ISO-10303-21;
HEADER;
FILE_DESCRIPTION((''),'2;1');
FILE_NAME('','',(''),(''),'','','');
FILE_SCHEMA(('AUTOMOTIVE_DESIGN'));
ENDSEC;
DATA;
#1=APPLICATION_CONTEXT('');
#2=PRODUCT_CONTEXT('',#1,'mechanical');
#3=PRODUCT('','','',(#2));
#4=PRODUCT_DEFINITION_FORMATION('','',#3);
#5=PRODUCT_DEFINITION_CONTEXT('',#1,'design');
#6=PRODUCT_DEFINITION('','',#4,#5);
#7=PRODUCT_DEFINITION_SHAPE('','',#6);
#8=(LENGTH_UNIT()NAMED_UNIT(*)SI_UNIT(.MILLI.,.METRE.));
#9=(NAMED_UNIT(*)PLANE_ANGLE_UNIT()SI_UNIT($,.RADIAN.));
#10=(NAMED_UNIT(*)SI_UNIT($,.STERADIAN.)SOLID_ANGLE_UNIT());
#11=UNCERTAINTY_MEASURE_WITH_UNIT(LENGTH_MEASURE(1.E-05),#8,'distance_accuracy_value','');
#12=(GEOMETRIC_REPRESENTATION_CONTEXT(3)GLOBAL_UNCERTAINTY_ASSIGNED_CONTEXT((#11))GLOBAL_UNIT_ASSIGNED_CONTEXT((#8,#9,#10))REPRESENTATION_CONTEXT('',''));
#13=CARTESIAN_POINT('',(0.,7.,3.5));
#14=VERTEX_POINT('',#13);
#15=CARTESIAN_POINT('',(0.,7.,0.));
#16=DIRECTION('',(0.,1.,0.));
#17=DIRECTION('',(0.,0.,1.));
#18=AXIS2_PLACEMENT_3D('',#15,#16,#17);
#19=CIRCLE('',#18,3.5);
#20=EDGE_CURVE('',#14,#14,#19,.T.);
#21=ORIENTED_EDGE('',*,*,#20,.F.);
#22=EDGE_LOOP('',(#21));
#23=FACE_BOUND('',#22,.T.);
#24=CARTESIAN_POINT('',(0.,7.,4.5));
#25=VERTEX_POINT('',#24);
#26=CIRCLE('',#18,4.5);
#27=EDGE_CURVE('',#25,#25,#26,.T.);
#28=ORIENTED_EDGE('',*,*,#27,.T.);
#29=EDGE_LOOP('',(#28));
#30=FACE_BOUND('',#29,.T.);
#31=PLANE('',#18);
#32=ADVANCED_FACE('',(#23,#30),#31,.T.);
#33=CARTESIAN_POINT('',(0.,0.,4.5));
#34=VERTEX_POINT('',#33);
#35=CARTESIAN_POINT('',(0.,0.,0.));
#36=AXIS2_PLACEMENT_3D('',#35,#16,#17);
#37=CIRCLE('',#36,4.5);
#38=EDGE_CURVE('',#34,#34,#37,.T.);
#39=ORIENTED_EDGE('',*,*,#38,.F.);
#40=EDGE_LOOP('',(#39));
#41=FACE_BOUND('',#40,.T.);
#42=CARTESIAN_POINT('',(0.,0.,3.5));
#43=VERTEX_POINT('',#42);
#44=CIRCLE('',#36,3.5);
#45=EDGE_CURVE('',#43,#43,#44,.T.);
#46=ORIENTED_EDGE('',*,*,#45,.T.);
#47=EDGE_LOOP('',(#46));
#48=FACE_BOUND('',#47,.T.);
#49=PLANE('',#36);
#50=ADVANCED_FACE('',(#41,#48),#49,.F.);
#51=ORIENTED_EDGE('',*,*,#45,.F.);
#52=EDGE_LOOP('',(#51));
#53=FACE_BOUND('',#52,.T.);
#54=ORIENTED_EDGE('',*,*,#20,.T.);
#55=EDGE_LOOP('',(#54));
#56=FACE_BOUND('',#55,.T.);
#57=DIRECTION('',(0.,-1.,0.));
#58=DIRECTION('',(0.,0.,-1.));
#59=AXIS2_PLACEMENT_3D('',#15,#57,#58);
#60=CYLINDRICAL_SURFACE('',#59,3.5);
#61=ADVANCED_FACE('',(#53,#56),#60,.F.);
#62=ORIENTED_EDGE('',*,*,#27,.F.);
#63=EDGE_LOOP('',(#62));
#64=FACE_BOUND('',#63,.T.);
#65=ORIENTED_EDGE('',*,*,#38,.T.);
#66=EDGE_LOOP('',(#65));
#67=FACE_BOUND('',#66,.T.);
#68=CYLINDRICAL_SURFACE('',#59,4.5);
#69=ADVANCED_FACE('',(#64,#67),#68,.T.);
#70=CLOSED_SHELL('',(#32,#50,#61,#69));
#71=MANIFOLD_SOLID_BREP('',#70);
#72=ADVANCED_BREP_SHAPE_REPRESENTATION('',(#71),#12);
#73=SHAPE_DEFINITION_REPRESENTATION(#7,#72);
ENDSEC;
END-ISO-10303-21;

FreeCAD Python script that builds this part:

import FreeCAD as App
import Part
import Sketcher
from FreeCAD import Vector

doc = App.newDocument("Part")
params = doc.addObject("Spreadsheet::Sheet", "Params")
for row, (alias, value) in enumerate([
    ("sketch1_diameter", "9 mm"),
    ("sketch1_diameter2", "7 mm"),
    ("pad1_length", "7 mm"),
], start=1):
    params.set(f"A{row}", alias)
    params.set(f"B{row}", "=" + value)
    params.setAlias(f"B{row}", alias)

body = doc.addObject("PartDesign::Body", "Body")

# Sketch on XZ plane
sketch1 = body.newObject("Sketcher::SketchObject", "Sketch")
sketch1.AttachmentSupport = (doc.getObject("XZ_Plane"), [""])
sketch1.MapMode = "FlatFace"
sketch1.addGeometry([
    Part.Circle(Vector(0, 0, 0), Vector(0, 0, 1), 4.5),
    Part.Circle(Vector(0, 0, 0), Vector(0, 0, 1), 3.5),
], False)
sketch1.addConstraint([
    Sketcher.Constraint("Coincident", 0, 3, -1, 1),
    Sketcher.Constraint("Coincident", 1, 3, -1, 1),
    Sketcher.Constraint("Diameter", 0, 9.0),
    Sketcher.Constraint("Diameter", 1, 7.0),
])
sketch1.setExpression("Constraints[2]", "Params.sketch1_diameter")
sketch1.setExpression("Constraints[3]", "Params.sketch1_diameter2")
pad1 = body.newObject("PartDesign::Pad", "Pad")
pad1.Profile = sketch1
pad1.setExpression("Length", "Params.pad1_length")
pad1.Reversed = True

doc.recompute()
